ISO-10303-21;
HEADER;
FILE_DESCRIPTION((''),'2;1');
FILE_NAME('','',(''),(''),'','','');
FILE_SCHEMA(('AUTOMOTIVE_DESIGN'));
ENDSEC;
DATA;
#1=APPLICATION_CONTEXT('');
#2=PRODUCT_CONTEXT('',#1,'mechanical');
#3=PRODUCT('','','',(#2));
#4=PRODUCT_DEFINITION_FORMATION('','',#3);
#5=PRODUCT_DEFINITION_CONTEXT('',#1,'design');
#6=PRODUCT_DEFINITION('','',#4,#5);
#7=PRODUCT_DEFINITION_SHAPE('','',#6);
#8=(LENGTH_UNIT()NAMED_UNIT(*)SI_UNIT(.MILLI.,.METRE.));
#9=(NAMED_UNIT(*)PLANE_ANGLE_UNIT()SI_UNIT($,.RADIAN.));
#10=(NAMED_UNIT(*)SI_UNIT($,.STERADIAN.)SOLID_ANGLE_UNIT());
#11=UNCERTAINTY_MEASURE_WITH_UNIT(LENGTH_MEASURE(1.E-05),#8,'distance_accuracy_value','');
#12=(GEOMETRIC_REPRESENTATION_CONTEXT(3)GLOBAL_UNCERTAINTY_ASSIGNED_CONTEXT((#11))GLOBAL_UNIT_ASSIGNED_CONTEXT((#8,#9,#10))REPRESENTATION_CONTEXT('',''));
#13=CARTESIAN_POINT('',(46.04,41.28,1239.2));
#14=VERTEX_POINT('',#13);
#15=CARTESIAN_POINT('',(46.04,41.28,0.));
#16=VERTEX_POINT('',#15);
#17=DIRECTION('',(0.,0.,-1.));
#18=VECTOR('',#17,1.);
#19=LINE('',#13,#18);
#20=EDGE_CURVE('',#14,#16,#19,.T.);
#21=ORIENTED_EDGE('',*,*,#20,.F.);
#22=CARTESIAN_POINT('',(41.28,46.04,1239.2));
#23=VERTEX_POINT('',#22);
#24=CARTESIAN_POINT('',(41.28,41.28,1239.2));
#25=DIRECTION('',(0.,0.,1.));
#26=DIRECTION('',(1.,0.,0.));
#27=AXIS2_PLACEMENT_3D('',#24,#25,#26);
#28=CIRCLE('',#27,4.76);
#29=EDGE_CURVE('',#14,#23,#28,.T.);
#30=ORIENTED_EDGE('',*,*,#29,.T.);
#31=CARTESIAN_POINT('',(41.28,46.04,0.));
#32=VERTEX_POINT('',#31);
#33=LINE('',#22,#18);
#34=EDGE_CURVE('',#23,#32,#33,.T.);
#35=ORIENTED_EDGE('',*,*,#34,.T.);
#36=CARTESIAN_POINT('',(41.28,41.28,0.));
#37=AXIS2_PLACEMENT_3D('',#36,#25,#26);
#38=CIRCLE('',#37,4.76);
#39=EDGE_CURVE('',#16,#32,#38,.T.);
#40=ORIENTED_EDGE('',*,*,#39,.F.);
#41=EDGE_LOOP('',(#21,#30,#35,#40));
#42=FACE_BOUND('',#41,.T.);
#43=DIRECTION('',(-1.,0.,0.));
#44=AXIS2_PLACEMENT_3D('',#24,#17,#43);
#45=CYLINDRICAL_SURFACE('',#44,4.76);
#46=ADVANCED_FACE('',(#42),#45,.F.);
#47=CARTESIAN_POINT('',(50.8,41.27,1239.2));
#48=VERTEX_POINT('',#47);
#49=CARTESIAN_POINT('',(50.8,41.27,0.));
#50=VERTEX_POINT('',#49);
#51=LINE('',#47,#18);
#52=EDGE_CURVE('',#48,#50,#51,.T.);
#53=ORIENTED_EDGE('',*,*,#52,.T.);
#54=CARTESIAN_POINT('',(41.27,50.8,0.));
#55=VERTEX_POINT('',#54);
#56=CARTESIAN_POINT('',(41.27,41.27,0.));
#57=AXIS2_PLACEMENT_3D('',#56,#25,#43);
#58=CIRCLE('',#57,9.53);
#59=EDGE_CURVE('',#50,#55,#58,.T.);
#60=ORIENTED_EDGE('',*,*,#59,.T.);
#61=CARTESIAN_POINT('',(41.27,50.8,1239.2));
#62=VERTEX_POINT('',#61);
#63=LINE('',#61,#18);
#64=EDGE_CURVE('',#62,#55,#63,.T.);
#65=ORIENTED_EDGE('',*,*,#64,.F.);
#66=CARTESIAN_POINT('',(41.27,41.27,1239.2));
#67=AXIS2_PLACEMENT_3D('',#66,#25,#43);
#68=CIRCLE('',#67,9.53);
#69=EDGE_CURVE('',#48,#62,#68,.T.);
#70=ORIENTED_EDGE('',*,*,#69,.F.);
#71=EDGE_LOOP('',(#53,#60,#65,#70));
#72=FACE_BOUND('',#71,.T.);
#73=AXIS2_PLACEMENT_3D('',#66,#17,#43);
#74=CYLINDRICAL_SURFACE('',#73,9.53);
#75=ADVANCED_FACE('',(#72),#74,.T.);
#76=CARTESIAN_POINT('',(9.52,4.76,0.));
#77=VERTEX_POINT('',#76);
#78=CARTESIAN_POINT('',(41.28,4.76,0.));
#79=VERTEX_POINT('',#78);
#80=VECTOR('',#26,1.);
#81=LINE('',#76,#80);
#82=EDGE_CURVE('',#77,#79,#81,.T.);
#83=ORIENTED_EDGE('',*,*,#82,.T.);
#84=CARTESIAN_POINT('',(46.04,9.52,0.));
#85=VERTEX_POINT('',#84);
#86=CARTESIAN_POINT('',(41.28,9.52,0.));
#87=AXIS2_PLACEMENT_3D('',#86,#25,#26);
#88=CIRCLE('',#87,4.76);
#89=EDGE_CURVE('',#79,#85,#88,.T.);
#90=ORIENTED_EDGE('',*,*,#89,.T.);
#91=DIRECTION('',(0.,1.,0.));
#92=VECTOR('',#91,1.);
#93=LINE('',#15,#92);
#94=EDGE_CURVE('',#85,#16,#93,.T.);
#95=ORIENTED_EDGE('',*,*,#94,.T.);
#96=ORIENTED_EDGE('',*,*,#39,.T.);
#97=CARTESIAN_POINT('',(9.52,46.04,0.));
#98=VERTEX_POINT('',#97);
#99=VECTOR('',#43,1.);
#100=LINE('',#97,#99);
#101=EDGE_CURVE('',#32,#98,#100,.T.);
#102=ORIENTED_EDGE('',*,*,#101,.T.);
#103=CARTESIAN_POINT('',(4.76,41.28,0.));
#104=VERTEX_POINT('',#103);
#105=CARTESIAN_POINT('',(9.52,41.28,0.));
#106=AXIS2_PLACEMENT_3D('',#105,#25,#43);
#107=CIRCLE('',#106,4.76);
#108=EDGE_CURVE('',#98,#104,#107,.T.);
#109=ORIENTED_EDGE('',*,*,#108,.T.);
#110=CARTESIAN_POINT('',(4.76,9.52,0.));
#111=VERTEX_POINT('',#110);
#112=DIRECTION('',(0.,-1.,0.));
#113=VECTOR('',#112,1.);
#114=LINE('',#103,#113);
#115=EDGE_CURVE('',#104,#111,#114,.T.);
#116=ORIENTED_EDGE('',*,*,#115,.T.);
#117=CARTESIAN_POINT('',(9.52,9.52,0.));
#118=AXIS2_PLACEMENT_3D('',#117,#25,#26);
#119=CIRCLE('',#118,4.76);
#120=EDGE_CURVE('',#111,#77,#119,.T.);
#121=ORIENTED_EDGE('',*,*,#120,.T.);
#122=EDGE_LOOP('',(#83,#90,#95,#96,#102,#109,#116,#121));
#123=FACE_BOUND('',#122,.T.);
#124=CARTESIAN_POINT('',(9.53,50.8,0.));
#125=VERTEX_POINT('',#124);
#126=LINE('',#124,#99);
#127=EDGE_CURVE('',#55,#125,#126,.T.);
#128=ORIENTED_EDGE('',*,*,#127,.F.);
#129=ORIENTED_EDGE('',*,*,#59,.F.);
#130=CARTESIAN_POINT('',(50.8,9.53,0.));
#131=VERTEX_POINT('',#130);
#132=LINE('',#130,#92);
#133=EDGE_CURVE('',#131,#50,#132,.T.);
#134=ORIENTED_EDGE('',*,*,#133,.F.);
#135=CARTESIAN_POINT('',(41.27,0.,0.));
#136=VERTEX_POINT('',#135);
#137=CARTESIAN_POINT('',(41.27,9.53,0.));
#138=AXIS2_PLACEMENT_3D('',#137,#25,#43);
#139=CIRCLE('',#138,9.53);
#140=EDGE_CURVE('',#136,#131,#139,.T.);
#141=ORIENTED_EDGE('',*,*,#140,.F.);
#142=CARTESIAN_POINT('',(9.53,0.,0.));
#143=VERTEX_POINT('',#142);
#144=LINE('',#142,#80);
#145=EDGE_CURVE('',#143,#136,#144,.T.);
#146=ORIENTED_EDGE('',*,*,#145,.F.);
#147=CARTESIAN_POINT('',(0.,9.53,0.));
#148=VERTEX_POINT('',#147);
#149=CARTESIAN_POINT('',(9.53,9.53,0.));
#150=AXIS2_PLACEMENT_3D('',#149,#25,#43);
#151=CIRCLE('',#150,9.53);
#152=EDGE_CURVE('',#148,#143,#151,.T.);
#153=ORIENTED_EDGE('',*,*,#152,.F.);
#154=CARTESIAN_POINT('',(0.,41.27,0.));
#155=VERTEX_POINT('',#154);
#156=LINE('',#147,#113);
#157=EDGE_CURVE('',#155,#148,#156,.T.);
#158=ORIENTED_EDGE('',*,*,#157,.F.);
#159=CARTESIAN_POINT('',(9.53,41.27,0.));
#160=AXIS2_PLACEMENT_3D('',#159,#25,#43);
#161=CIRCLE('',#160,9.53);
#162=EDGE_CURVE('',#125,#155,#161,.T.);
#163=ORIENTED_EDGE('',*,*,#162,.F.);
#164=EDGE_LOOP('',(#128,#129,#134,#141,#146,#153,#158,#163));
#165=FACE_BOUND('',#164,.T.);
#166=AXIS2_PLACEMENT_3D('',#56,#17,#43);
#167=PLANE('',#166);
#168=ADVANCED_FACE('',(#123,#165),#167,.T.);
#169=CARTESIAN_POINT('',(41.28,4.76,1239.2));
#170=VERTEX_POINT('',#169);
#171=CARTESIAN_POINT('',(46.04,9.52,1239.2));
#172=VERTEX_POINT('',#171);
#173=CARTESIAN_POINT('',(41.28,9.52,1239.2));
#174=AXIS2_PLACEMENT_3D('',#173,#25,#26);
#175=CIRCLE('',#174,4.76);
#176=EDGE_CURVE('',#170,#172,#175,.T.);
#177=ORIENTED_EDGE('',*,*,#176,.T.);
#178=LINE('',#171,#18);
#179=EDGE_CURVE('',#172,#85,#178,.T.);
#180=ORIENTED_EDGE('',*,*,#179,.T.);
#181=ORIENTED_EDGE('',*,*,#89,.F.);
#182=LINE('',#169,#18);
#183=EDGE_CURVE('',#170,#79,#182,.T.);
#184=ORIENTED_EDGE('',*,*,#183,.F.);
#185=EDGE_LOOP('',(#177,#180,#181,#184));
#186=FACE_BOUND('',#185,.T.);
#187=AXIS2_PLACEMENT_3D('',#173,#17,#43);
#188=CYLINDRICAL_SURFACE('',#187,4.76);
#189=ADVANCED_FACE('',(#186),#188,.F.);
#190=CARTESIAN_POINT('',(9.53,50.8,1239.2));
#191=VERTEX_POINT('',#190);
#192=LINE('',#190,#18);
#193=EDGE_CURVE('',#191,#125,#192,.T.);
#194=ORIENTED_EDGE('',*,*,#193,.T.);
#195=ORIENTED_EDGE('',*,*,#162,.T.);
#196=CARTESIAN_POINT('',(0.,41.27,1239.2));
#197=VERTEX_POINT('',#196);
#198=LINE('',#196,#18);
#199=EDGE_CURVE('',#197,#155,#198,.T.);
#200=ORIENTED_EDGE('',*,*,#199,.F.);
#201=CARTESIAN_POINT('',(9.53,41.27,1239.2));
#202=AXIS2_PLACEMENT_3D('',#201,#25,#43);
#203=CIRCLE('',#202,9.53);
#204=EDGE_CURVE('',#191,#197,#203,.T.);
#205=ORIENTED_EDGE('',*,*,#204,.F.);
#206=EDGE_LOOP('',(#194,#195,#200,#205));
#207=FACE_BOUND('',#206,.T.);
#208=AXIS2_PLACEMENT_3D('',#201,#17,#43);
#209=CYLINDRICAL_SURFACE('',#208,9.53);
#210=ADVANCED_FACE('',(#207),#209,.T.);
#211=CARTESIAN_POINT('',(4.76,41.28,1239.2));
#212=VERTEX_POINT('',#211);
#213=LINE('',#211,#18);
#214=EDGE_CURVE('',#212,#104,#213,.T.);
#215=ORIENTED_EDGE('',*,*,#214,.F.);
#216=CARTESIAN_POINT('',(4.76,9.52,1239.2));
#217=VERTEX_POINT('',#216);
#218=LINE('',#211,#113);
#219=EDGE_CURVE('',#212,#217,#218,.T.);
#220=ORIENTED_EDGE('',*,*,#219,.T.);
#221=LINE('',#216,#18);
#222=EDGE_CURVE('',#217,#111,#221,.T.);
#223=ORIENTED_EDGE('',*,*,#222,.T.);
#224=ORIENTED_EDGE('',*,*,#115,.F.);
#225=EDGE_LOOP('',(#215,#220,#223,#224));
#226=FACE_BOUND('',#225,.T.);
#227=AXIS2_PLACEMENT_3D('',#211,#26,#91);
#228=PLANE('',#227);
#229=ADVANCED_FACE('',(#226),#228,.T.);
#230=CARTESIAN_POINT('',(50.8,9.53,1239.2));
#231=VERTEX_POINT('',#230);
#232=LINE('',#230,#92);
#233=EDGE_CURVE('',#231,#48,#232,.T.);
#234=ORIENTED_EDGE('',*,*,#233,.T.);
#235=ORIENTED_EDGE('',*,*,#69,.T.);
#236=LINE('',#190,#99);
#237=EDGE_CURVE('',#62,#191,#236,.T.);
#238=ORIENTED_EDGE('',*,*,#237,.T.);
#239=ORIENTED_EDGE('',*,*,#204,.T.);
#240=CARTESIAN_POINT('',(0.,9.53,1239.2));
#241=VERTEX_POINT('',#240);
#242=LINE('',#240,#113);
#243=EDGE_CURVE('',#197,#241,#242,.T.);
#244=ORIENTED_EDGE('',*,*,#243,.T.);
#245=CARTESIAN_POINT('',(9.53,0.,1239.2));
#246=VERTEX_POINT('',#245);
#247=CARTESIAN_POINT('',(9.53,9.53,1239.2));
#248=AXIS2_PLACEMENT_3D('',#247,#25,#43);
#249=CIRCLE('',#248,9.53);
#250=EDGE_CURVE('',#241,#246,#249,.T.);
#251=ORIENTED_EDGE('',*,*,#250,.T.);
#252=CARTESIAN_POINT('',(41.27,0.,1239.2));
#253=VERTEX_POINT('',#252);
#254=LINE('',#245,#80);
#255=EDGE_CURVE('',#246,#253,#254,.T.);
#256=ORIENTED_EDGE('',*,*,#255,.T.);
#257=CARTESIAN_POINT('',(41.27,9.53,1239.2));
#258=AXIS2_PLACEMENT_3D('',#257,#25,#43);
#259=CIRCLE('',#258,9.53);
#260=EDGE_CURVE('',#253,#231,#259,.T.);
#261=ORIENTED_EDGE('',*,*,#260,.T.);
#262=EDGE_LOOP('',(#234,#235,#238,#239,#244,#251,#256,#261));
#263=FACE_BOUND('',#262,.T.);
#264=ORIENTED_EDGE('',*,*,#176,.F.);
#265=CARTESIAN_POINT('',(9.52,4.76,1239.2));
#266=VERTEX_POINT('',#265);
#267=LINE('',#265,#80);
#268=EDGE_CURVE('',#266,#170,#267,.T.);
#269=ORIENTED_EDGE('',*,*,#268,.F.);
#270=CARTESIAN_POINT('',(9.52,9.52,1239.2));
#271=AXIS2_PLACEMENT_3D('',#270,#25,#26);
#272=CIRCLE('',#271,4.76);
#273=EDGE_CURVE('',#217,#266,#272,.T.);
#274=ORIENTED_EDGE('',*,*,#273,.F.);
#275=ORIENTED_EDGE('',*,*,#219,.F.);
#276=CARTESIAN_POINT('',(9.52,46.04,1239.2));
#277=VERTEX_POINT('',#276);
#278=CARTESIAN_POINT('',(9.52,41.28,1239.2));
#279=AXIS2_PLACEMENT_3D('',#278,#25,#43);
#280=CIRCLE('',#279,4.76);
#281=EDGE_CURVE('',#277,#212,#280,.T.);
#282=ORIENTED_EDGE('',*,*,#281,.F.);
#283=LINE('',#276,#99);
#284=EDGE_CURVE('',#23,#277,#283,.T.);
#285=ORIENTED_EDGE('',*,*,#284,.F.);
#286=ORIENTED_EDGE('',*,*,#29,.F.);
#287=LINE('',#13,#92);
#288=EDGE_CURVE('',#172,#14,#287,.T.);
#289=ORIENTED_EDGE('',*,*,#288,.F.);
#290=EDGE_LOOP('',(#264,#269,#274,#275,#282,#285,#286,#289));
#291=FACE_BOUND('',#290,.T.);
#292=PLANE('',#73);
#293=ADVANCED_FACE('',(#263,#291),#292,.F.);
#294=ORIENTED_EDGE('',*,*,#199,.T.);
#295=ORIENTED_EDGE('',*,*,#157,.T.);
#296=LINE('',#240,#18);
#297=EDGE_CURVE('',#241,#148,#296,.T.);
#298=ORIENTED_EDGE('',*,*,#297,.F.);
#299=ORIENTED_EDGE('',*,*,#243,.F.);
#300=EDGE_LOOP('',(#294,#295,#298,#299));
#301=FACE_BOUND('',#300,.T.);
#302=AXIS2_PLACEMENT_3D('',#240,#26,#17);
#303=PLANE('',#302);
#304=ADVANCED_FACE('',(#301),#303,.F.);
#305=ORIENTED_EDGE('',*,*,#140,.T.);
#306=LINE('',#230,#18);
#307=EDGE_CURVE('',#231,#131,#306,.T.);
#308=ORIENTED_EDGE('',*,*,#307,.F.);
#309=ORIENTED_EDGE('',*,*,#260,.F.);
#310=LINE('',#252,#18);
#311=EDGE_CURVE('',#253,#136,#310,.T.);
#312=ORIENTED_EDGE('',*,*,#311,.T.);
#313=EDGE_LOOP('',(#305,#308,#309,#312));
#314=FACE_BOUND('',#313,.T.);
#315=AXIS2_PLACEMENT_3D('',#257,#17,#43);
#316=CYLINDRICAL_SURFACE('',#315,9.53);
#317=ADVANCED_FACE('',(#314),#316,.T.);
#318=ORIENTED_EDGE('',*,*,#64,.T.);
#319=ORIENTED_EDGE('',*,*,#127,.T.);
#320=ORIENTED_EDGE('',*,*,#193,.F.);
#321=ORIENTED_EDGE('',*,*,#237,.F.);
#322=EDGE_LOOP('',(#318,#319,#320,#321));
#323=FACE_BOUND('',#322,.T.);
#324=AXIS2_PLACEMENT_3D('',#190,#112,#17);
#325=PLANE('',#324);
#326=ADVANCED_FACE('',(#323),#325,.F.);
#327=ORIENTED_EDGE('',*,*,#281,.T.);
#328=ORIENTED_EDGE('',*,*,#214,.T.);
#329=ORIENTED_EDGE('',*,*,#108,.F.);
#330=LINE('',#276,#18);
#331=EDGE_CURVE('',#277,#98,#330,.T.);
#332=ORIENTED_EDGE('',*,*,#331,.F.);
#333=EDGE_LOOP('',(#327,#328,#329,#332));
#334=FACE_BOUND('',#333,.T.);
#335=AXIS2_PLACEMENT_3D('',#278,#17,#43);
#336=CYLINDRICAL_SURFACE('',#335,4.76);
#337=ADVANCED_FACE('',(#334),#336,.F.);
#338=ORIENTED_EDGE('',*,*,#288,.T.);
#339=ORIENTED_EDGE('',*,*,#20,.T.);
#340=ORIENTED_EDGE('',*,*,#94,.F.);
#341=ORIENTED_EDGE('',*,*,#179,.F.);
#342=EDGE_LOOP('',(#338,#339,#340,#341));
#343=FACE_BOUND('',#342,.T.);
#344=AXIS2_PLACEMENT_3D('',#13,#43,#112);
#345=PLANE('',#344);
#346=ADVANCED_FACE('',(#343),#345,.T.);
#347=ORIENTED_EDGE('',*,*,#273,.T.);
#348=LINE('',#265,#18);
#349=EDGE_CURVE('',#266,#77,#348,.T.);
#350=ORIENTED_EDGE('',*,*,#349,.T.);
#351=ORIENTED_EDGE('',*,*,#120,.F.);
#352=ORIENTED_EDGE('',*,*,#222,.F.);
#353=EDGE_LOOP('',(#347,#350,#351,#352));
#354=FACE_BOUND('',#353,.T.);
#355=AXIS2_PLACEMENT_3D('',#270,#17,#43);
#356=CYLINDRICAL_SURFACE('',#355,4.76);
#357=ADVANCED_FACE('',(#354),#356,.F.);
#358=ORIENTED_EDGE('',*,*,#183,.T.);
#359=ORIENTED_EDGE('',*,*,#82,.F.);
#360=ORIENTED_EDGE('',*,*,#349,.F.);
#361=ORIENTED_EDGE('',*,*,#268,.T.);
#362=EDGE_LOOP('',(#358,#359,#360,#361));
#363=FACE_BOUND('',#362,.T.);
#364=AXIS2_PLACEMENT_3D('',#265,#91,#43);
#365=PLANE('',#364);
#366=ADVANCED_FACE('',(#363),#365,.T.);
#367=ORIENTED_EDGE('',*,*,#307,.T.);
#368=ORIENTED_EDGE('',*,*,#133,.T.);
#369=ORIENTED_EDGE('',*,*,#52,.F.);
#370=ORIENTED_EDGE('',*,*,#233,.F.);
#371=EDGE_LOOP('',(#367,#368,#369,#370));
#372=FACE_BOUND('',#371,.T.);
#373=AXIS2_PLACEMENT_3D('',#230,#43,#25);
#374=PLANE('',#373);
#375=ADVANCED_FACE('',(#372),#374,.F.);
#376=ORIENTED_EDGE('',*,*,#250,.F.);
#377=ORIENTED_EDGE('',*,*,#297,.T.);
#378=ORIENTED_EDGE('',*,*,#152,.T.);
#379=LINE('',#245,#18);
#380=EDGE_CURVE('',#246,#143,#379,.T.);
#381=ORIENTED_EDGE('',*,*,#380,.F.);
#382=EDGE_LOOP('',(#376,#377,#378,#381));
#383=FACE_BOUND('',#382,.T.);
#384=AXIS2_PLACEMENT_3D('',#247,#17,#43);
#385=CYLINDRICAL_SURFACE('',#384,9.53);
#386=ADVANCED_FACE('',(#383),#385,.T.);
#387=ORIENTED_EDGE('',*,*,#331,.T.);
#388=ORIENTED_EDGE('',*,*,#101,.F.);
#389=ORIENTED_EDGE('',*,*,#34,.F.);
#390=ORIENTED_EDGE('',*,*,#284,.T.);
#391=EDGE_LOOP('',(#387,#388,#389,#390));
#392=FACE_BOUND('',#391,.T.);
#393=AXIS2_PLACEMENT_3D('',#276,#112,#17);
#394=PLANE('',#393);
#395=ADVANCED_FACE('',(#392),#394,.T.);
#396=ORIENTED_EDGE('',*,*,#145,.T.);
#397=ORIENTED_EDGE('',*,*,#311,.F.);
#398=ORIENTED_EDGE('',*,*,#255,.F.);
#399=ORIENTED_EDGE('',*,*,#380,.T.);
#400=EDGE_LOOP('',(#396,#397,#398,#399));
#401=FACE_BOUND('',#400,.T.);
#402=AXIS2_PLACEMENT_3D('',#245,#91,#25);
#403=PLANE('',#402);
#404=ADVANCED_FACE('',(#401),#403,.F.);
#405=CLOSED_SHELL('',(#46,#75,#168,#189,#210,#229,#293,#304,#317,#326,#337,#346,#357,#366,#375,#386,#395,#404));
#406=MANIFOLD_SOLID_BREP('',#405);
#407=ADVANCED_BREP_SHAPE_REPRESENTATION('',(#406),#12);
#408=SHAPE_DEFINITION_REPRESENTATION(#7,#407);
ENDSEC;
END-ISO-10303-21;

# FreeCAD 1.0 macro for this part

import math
import FreeCAD as App
import Part
import Sketcher
from FreeCAD import Vector

doc = App.newDocument("Part")
body = doc.addObject("PartDesign::Body", "Body")

# Sketch on XY plane
sketch1 = body.newObject("Sketcher::SketchObject", "Sketch")
sketch1.AttachmentSupport = (doc.getObject("XY_Plane"), [""])
sketch1.MapMode = "FlatFace"
sketch1.addGeometry([
    Part.LineSegment(Vector(9.53, 0, 0), Vector(41.27, 0, 0)),  # 0
    Part.ArcOfCircle(Part.Circle(Vector(41.27, 9.53, 0), Vector(0, 0, 1), 9.53), math.radians(-90), math.radians(0)),  # 1
    Part.LineSegment(Vector(50.8, 9.53, 0), Vector(50.8, 41.27, 0)),  # 2
    Part.ArcOfCircle(Part.Circle(Vector(41.27, 41.27, 0), Vector(0, 0, 1), 9.53), math.radians(0), math.radians(90)),  # 3
    Part.LineSegment(Vector(41.27, 50.8, 0), Vector(9.53, 50.8, 0)),  # 4
    Part.ArcOfCircle(Part.Circle(Vector(9.53, 41.27, 0), Vector(0, 0, 1), 9.53), math.radians(90), math.radians(180)),  # 5
    Part.LineSegment(Vector(0, 41.27, 0), Vector(0, 9.53, 0)),  # 6
    Part.ArcOfCircle(Part.Circle(Vector(9.53, 9.53, 0), Vector(0, 0, 1), 9.53), math.radians(180), math.radians(270)),  # 7
    Part.ArcOfCircle(Part.Circle(Vector(9.52, 41.28, 0), Vector(0, 0, 1), 4.76), math.radians(90), math.radians(180)),  # 8
    Part.LineSegment(Vector(9.52, 46.04, 0), Vector(41.28, 46.04, 0)),  # 9
    Part.ArcOfCircle(Part.Circle(Vector(41.28, 41.28, 0), Vector(0, 0, 1), 4.76), math.radians(0), math.radians(90)),  # 10
    Part.LineSegment(Vector(46.04, 41.28, 0), Vector(46.04, 9.52, 0)),  # 11
    Part.ArcOfCircle(Part.Circle(Vector(41.28, 9.52, 0), Vector(0, 0, 1), 4.76), math.radians(-90), math.radians(0)),  # 12
    Part.LineSegment(Vector(41.28, 4.76, 0), Vector(9.52, 4.76, 0)),  # 13
    Part.ArcOfCircle(Part.Circle(Vector(9.52, 9.52, 0), Vector(0, 0, 1), 4.76), math.radians(-180), math.radians(-90)),  # 14
    Part.LineSegment(Vector(4.76, 9.52, 0), Vector(4.76, 41.28, 0)),  # 15
], False)
sketch1.addConstraint([
    Sketcher.Constraint("Tangent", 0, 2, 1, 1),
    Sketcher.Constraint("Tangent", 1, 2, 2, 1),
    Sketcher.Constraint("Tangent", 2, 2, 3, 1),
    Sketcher.Constraint("Tangent", 3, 2, 4, 1),
    Sketcher.Constraint("Tangent", 4, 2, 5, 1),
    Sketcher.Constraint("Tangent", 5, 2, 6, 1),
    Sketcher.Constraint("Tangent", 6, 2, 7, 1),
    Sketcher.Constraint("Tangent", 7, 2, 0, 1),
    Sketcher.Constraint("Tangent", 8, 1, 9, 1),
    Sketcher.Constraint("Tangent", 9, 2, 10, 2),
    Sketcher.Constraint("Tangent", 10, 1, 11, 1),
    Sketcher.Constraint("Tangent", 11, 2, 12, 2),
    Sketcher.Constraint("Tangent", 12, 1, 13, 1),
    Sketcher.Constraint("Tangent", 13, 2, 14, 2),
    Sketcher.Constraint("Tangent", 14, 1, 15, 1),
    Sketcher.Constraint("Tangent", 15, 2, 8, 2),
    Sketcher.Constraint("Horizontal", 0),
    Sketcher.Constraint("Vertical", 2),
    Sketcher.Constraint("Horizontal", 4),
    Sketcher.Constraint("Vertical", 6),
    Sketcher.Constraint("Horizontal", 9),
    Sketcher.Constraint("Vertical", 11),
    Sketcher.Constraint("Horizontal", 13),
    Sketcher.Constraint("Vertical", 15),
    Sketcher.Constraint("Equal", 1, 3),
    Sketcher.Constraint("Equal", 3, 5),
    Sketcher.Constraint("Equal", 5, 7),
    Sketcher.Constraint("Equal", 8, 10),
    Sketcher.Constraint("Equal", 10, 12),
    Sketcher.Constraint("Equal", 12, 14),
    Sketcher.Constraint("PointOnObject", 0, 2, -1),
    Sketcher.Constraint("PointOnObject", 5, 2, -2),
    Sketcher.Constraint("Equal", 4, 2),
    Sketcher.Constraint("Equal", 13, 11),
    Sketcher.Constraint("Radius", 1, 9.53),
    Sketcher.Constraint("Radius", 8, 4.76),
    Sketcher.Constraint("DistanceX", 0, 1, 0, 2, 31.74),
    Sketcher.Constraint("DistanceX", 9, 1, 9, 2, 31.76),
    Sketcher.Constraint("DistanceX", -1, 1, 8, 3, 9.52),
    Sketcher.Constraint("DistanceY", -1, 1, 8, 3, 41.28),
])
pad1 = body.newObject("PartDesign::Pad", "Pad")
pad1.Profile = sketch1
pad1.Length = 1239.2

doc.recompute()
